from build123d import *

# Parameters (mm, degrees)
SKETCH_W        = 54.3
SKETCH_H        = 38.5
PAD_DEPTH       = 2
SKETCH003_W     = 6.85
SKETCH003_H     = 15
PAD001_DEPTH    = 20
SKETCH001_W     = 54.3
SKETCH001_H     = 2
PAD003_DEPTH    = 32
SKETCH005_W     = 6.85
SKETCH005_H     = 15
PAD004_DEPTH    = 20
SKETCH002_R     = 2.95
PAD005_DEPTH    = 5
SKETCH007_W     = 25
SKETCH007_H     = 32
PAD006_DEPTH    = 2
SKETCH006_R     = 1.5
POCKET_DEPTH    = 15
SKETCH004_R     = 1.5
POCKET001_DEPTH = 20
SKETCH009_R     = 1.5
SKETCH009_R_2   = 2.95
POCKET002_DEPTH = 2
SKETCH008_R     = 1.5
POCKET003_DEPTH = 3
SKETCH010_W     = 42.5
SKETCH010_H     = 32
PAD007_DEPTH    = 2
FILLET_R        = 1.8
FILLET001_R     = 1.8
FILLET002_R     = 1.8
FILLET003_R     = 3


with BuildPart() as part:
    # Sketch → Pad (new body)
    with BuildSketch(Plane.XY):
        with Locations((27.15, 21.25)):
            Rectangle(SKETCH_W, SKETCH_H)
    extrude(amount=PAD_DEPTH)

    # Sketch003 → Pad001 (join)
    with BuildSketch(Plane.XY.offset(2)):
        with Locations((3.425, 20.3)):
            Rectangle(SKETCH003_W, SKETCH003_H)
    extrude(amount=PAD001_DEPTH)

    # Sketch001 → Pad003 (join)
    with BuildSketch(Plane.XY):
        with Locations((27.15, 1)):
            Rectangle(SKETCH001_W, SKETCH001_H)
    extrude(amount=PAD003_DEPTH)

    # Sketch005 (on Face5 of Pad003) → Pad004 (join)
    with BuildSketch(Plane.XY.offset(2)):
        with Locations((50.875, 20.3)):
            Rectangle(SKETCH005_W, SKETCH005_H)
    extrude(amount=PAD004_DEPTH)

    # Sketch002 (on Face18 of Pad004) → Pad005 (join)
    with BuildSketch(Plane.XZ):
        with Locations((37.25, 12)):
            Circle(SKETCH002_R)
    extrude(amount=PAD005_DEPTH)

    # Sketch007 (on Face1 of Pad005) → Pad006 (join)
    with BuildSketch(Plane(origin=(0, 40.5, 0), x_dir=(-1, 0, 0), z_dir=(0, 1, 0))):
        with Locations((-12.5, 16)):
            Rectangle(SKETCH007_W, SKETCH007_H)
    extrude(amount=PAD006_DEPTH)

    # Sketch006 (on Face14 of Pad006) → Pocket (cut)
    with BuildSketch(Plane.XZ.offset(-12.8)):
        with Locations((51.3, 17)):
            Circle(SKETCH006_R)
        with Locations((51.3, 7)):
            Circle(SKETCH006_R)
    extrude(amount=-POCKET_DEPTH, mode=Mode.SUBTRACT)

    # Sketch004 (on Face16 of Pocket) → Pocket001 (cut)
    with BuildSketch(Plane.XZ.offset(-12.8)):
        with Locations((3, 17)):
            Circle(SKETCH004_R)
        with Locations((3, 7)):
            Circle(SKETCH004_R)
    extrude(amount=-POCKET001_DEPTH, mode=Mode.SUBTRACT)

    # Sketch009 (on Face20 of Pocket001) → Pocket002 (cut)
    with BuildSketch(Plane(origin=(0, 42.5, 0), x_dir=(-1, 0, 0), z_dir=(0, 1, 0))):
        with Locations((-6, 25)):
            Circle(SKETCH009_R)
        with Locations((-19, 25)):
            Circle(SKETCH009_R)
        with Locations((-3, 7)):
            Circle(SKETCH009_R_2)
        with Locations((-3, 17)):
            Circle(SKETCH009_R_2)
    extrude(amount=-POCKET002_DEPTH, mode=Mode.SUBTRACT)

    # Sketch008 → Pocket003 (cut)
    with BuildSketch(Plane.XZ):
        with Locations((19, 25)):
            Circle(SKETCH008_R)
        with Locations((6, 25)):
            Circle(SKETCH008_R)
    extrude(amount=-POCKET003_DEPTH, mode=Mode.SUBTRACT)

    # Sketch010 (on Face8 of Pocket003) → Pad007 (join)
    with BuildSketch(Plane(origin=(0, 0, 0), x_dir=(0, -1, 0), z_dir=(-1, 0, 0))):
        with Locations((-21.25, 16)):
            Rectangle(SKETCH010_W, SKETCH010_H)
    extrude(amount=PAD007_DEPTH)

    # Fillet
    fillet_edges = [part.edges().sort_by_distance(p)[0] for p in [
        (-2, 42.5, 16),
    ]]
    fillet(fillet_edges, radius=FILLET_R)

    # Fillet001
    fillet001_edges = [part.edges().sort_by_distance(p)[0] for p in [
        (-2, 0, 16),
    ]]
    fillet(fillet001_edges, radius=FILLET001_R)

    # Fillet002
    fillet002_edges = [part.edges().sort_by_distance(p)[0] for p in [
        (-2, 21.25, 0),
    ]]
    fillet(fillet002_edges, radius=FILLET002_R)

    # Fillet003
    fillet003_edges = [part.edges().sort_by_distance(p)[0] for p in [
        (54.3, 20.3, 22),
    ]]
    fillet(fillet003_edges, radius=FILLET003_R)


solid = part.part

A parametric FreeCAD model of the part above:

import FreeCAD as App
import Part
import Sketcher
from FreeCAD import Vector


def edges_at(feature, points):
    """Names of the edges that pass closest to the given points."""
    edges = feature.Shape.Edges
    near = lambda p: min(range(len(edges)), key=lambda i: edges[i].distToShape(Part.Vertex(*p))[0])
    return sorted({f"Edge{near(p) + 1}" for p in points})


def add_polygon(sketch, points):
    """Adds a closed chain of lines whose ends are joined by coincident constraints."""
    first, n = sketch.GeometryCount, len(points)
    for a, b in zip(points, points[1:] + points[:1]):
        sketch.addGeometry(Part.LineSegment(App.Vector(*a, 0), App.Vector(*b, 0)), False)
    for i in range(n):
        sketch.addConstraint(Sketcher.Constraint("Coincident", first + i, 2, first + (i + 1) % n, 1))

doc = App.newDocument("Part")
body = doc.addObject("PartDesign::Body", "Body")

sketch1 = doc.addObject("Sketcher::SketchObject", "Sketch")
body.addObject(sketch1)
sketch1.AttachmentSupport = (doc.XY_Plane, [""])
sketch1.MapMode = "FlatFace"
add_polygon(sketch1, [(0, 40), (0, 2), (54, 2), (54, 40)])
sketch1.addConstraint([
    Sketcher.Constraint("Vertical", 0),
    Sketcher.Constraint("Horizontal", 1),
    Sketcher.Constraint("Vertical", 2),
    Sketcher.Constraint("Horizontal", 3),
    Sketcher.Constraint("PointOnObject", 0, 2, -2),
    Sketcher.Constraint("DistanceX", 1, 1, 1, 2, 54.3),
    Sketcher.Constraint("DistanceY", 0, 2, 0, 1, 38.5),
    Sketcher.Constraint("DistanceY", -1, 1, 0, 2, 2.0),
])
pad1 = doc.addObject("PartDesign::Pad", "Pad")
body.addObject(pad1)
pad1.Profile = sketch1
pad1.Length = 2

sketch2 = doc.addObject("Sketcher::SketchObject", "Sketch001")
body.addObject(sketch2)
sketch2.AttachmentSupport = (doc.XY_Plane, [""])
sketch2.MapMode = "FlatFace"
sketch2.AttachmentOffset = App.Placement(Vector(0, 0, 2), App.Rotation())
add_polygon(sketch2, [(0, 28), (0, 13), (7, 13), (7, 28)])
sketch2.addConstraint([
    Sketcher.Constraint("Vertical", 0),
    Sketcher.Constraint("Horizontal", 1),
    Sketcher.Constraint("Vertical", 2),
    Sketcher.Constraint("Horizontal", 3),
    Sketcher.Constraint("PointOnObject", 0, 2, -2),
    Sketcher.Constraint("DistanceY", 0, 2, 0, 1, 15.0),
    Sketcher.Constraint("DistanceX", 1, 1, 1, 2, 6.85),
    Sketcher.Constraint("DistanceY", -1, 1, 0, 2, 12.8),
])
pad2 = doc.addObject("PartDesign::Pad", "Pad001")
body.addObject(pad2)
pad2.Profile = sketch2
pad2.Length = 20

sketch3 = doc.addObject("Sketcher::SketchObject", "Sketch002")
body.addObject(sketch3)
sketch3.AttachmentSupport = (doc.XY_Plane, [""])
sketch3.MapMode = "FlatFace"
add_polygon(sketch3, [(0, 2), (0, 0), (54.3, 0), (54.3, 2)])
sketch3.addConstraint([
    Sketcher.Constraint("Vertical", 0),
    Sketcher.Constraint("Horizontal", 1),
    Sketcher.Constraint("Vertical", 2),
    Sketcher.Constraint("Horizontal", 3),
    Sketcher.Constraint("Coincident", 0, 2, -1, 1),
    Sketcher.Constraint("DistanceY", 0, 2, 0, 1, 2.0),
    Sketcher.Constraint("DistanceX", 1, 1, 1, 2, 54.3),
])
pad3 = doc.addObject("PartDesign::Pad", "Pad002")
body.addObject(pad3)
pad3.Profile = sketch3
pad3.Length = 32

sketch4 = doc.addObject("Sketcher::SketchObject", "Sketch003")
body.addObject(sketch4)
sketch4.AttachmentSupport = (doc.XY_Plane, [""])
sketch4.MapMode = "FlatFace"
sketch4.AttachmentOffset = App.Placement(Vector(0, 0, 2), App.Rotation())
add_polygon(sketch4, [(47, 28), (47, 13), (54, 13), (54, 28)])
sketch4.addConstraint([
    Sketcher.Constraint("Vertical", 0),
    Sketcher.Constraint("Horizontal", 1),
    Sketcher.Constraint("Vertical", 2),
    Sketcher.Constraint("Horizontal", 3),
    Sketcher.Constraint("DistanceY", 0, 2, 0, 1, 15.0),
    Sketcher.Constraint("DistanceX", 1, 1, 1, 2, 6.85),
    Sketcher.Constraint("DistanceY", -1, 1, 0, 2, 12.8),
    Sketcher.Constraint("DistanceX", -1, 1, 1, 2, 54.3),
])
pad4 = doc.addObject("PartDesign::Pad", "Pad003")
body.addObject(pad4)
pad4.Profile = sketch4
pad4.Length = 20

sketch5 = doc.addObject("Sketcher::SketchObject", "Sketch004")
body.addObject(sketch5)
sketch5.AttachmentSupport = (doc.XZ_Plane, [""])
sketch5.MapMode = "FlatFace"
sketch5.addGeometry(Part.Circle(Vector(37.2, 12, 0), Vector(0, 0, 1), 3), False)
sketch5.addConstraint([
    Sketcher.Constraint("Diameter", 0, 5.9),
    Sketcher.Constraint("DistanceY", -1, 1, 0, 3, 12.0),
    Sketcher.Constraint("DistanceX", -1, 1, 0, 3, 37.25),
])
pad5 = doc.addObject("PartDesign::Pad", "Pad004")
body.addObject(pad5)
pad5.Profile = sketch5
pad5.Length = 5

sketch6 = doc.addObject("Sketcher::SketchObject", "Sketch005")
body.addObject(sketch6)
sketch6.AttachmentSupport = (doc.XZ_Plane, [""])
sketch6.MapMode = "FlatFace"
sketch6.AttachmentOffset = App.Placement(Vector(0, 0, -40.5), App.Rotation())
add_polygon(sketch6, [(25, 32), (25, 0), (0, 0), (0, 32)])
sketch6.addConstraint([
    Sketcher.Constraint("Vertical", 0),
    Sketcher.Constraint("Horizontal", 1),
    Sketcher.Constraint("Vertical", 2),
    Sketcher.Constraint("Horizontal", 3),
    Sketcher.Constraint("Coincident", 1, 2, -1, 1),
    Sketcher.Constraint("DistanceX", 1, 2, 1, 1, 25.0),
    Sketcher.Constraint("DistanceY", 0, 2, 0, 1, 32.0),
])
pad6 = doc.addObject("PartDesign::Pad", "Pad005")
body.addObject(pad6)
pad6.Profile = sketch6
pad6.Length = 2
pad6.Reversed = True

sketch7 = doc.addObject("Sketcher::SketchObject", "Sketch006")
body.addObject(sketch7)
sketch7.AttachmentSupport = (doc.XZ_Plane, [""])
sketch7.MapMode = "FlatFace"
sketch7.AttachmentOffset = App.Placement(Vector(0, 0, -12.8), App.Rotation())
sketch7.addGeometry([
    Part.Circle(Vector(51.3, 17, 0), Vector(0, 0, 1), 1.5),
    Part.Circle(Vector(51.3, 7, 0), Vector(0, 0, 1), 1.5),
], False)
sketch7.addConstraint([
    Sketcher.Constraint("Equal", 0, 1),
    Sketcher.Constraint("Vertical", 0, 3, 1, 3),
    Sketcher.Constraint("Diameter", 0, 3.0),
    Sketcher.Constraint("DistanceY", -1, 1, 0, 3, 17.0),
    Sketcher.Constraint("DistanceY", -1, 1, 1, 3, 7.0),
    Sketcher.Constraint("DistanceX", -1, 1, 0, 3, 51.3),
])
pocket1 = doc.addObject("PartDesign::Pocket", "Pocket")
body.addObject(pocket1)
pocket1.Profile = sketch7
pocket1.Length = 15

sketch8 = doc.addObject("Sketcher::SketchObject", "Sketch007")
body.addObject(sketch8)
sketch8.AttachmentSupport = (doc.XZ_Plane, [""])
sketch8.MapMode = "FlatFace"
sketch8.AttachmentOffset = App.Placement(Vector(0, 0, -12.8), App.Rotation())
sketch8.addGeometry([
    Part.Circle(Vector(3, 17, 0), Vector(0, 0, 1), 1.5),
    Part.Circle(Vector(3, 7, 0), Vector(0, 0, 1), 1.5),
], False)
sketch8.addConstraint([
    Sketcher.Constraint("Equal", 0, 1),
    Sketcher.Constraint("Vertical", 0, 3, 1, 3),
    Sketcher.Constraint("Diameter", 0, 3.0),
    Sketcher.Constraint("DistanceX", -1, 1, 0, 3, 3.0),
    Sketcher.Constraint("DistanceY", -1, 1, 0, 3, 17.0),
    Sketcher.Constraint("DistanceY", -1, 1, 1, 3, 7.0),
])
pocket2 = doc.addObject("PartDesign::Pocket", "Pocket001")
body.addObject(pocket2)
pocket2.Profile = sketch8
pocket2.Length = 20

sketch9 = doc.addObject("Sketcher::SketchObject", "Sketch008")
body.addObject(sketch9)
sketch9.AttachmentSupport = (doc.XZ_Plane, [""])
sketch9.MapMode = "FlatFace"
sketch9.AttachmentOffset = App.Placement(Vector(0, 0, -42.5), App.Rotation())
sketch9.addGeometry([
    Part.Circle(Vector(6, 25, 0), Vector(0, 0, 1), 1.5),
    Part.Circle(Vector(19, 25, 0), Vector(0, 0, 1), 1.5),
    Part.Circle(Vector(3, 7, 0), Vector(0, 0, 1), 3),
    Part.Circle(Vector(3, 17, 0), Vector(0, 0, 1), 3),
], False)
sketch9.addConstraint([
    Sketcher.Constraint("Equal", 0, 1),
    Sketcher.Constraint("Equal", 2, 3),
    Sketcher.Constraint("Horizontal", 0, 3, 1, 3),
    Sketcher.Constraint("Vertical", 2, 3, 3, 3),
    Sketcher.Constraint("Diameter", 0, 3.0),
    Sketcher.Constraint("Diameter", 2, 5.9),
    Sketcher.Constraint("DistanceX", -1, 1, 0, 3, 6.0),
    Sketcher.Constraint("DistanceY", -1, 1, 0, 3, 25.0),
    Sketcher.Constraint("DistanceX", -1, 1, 1, 3, 19.0),
    Sketcher.Constraint("DistanceX", -1, 1, 2, 3, 3.0),
    Sketcher.Constraint("DistanceY", -1, 1, 2, 3, 7.0),
    Sketcher.Constraint("DistanceY", -1, 1, 3, 3, 17.0),
])
pocket3 = doc.addObject("PartDesign::Pocket", "Pocket002")
body.addObject(pocket3)
pocket3.Profile = sketch9
pocket3.Length = 2
pocket3.Reversed = True

sketch10 = doc.addObject("Sketcher::SketchObject", "Sketch009")
body.addObject(sketch10)
sketch10.AttachmentSupport = (doc.XZ_Plane, [""])
sketch10.MapMode = "FlatFace"
sketch10.addGeometry([
    Part.Circle(Vector(19, 25, 0), Vector(0, 0, 1), 1.5),
    Part.Circle(Vector(6, 25, 0), Vector(0, 0, 1), 1.5),
], False)
sketch10.addConstraint([
    Sketcher.Constraint("Equal", 0, 1),
    Sketcher.Constraint("Horizontal", 0, 3, 1, 3),
    Sketcher.Constraint("Diameter", 0, 3.0),
    Sketcher.Constraint("DistanceX", -1, 1, 0, 3, 19.0),
    Sketcher.Constraint("DistanceY", -1, 1, 0, 3, 25.0),
    Sketcher.Constraint("DistanceX", -1, 1, 1, 3, 6.0),
])
pocket4 = doc.addObject("PartDesign::Pocket", "Pocket003")
body.addObject(pocket4)
pocket4.Profile = sketch10
pocket4.Length = 3

sketch11 = doc.addObject("Sketcher::SketchObject", "Sketch010")
body.addObject(sketch11)
sketch11.AttachmentSupport = (doc.YZ_Plane, [""])
sketch11.MapMode = "FlatFace"
add_polygon(sketch11, [(42, 32), (42, 0), (0, 0), (0, 32)])
sketch11.addConstraint([
    Sketcher.Constraint("Vertical", 0),
    Sketcher.Constraint("Horizontal", 1),
    Sketcher.Constraint("Vertical", 2),
    Sketcher.Constraint("Horizontal", 3),
    Sketcher.Constraint("Coincident", 1, 2, -1, 1),
    Sketcher.Constraint("DistanceY", 0, 2, 0, 1, 32.0),
    Sketcher.Constraint("DistanceX", 1, 2, 1, 1, 42.5),
])
pad7 = doc.addObject("PartDesign::Pad", "Pad006")
body.addObject(pad7)
pad7.Profile = sketch11
pad7.Length = 2
pad7.Reversed = True
doc.recompute()

fillet = doc.addObject("PartDesign::Fillet", "Fillet")
body.addObject(fillet)
fillet.Base = (pad7, edges_at(pad7, [(-2, 42.5, 16)]))
fillet.Radius = 1.8
doc.recompute()

fillet2 = doc.addObject("PartDesign::Fillet", "Fillet001")
body.addObject(fillet2)
fillet2.Base = (fillet, edges_at(fillet, [(-2, 0, 16)]))
fillet2.Radius = 1.8
doc.recompute()

fillet3 = doc.addObject("PartDesign::Fillet", "Fillet002")
body.addObject(fillet3)
fillet3.Base = (fillet2, edges_at(fillet2, [(-2, 21.25, 0)]))
fillet3.Radius = 1.8
doc.recompute()

fillet4 = doc.addObject("PartDesign::Fillet", "Fillet003")
body.addObject(fillet4)
fillet4.Base = (fillet3, edges_at(fillet3, [(54.3, 20.3, 22)]))
fillet4.Radius = 3

doc.recompute()
